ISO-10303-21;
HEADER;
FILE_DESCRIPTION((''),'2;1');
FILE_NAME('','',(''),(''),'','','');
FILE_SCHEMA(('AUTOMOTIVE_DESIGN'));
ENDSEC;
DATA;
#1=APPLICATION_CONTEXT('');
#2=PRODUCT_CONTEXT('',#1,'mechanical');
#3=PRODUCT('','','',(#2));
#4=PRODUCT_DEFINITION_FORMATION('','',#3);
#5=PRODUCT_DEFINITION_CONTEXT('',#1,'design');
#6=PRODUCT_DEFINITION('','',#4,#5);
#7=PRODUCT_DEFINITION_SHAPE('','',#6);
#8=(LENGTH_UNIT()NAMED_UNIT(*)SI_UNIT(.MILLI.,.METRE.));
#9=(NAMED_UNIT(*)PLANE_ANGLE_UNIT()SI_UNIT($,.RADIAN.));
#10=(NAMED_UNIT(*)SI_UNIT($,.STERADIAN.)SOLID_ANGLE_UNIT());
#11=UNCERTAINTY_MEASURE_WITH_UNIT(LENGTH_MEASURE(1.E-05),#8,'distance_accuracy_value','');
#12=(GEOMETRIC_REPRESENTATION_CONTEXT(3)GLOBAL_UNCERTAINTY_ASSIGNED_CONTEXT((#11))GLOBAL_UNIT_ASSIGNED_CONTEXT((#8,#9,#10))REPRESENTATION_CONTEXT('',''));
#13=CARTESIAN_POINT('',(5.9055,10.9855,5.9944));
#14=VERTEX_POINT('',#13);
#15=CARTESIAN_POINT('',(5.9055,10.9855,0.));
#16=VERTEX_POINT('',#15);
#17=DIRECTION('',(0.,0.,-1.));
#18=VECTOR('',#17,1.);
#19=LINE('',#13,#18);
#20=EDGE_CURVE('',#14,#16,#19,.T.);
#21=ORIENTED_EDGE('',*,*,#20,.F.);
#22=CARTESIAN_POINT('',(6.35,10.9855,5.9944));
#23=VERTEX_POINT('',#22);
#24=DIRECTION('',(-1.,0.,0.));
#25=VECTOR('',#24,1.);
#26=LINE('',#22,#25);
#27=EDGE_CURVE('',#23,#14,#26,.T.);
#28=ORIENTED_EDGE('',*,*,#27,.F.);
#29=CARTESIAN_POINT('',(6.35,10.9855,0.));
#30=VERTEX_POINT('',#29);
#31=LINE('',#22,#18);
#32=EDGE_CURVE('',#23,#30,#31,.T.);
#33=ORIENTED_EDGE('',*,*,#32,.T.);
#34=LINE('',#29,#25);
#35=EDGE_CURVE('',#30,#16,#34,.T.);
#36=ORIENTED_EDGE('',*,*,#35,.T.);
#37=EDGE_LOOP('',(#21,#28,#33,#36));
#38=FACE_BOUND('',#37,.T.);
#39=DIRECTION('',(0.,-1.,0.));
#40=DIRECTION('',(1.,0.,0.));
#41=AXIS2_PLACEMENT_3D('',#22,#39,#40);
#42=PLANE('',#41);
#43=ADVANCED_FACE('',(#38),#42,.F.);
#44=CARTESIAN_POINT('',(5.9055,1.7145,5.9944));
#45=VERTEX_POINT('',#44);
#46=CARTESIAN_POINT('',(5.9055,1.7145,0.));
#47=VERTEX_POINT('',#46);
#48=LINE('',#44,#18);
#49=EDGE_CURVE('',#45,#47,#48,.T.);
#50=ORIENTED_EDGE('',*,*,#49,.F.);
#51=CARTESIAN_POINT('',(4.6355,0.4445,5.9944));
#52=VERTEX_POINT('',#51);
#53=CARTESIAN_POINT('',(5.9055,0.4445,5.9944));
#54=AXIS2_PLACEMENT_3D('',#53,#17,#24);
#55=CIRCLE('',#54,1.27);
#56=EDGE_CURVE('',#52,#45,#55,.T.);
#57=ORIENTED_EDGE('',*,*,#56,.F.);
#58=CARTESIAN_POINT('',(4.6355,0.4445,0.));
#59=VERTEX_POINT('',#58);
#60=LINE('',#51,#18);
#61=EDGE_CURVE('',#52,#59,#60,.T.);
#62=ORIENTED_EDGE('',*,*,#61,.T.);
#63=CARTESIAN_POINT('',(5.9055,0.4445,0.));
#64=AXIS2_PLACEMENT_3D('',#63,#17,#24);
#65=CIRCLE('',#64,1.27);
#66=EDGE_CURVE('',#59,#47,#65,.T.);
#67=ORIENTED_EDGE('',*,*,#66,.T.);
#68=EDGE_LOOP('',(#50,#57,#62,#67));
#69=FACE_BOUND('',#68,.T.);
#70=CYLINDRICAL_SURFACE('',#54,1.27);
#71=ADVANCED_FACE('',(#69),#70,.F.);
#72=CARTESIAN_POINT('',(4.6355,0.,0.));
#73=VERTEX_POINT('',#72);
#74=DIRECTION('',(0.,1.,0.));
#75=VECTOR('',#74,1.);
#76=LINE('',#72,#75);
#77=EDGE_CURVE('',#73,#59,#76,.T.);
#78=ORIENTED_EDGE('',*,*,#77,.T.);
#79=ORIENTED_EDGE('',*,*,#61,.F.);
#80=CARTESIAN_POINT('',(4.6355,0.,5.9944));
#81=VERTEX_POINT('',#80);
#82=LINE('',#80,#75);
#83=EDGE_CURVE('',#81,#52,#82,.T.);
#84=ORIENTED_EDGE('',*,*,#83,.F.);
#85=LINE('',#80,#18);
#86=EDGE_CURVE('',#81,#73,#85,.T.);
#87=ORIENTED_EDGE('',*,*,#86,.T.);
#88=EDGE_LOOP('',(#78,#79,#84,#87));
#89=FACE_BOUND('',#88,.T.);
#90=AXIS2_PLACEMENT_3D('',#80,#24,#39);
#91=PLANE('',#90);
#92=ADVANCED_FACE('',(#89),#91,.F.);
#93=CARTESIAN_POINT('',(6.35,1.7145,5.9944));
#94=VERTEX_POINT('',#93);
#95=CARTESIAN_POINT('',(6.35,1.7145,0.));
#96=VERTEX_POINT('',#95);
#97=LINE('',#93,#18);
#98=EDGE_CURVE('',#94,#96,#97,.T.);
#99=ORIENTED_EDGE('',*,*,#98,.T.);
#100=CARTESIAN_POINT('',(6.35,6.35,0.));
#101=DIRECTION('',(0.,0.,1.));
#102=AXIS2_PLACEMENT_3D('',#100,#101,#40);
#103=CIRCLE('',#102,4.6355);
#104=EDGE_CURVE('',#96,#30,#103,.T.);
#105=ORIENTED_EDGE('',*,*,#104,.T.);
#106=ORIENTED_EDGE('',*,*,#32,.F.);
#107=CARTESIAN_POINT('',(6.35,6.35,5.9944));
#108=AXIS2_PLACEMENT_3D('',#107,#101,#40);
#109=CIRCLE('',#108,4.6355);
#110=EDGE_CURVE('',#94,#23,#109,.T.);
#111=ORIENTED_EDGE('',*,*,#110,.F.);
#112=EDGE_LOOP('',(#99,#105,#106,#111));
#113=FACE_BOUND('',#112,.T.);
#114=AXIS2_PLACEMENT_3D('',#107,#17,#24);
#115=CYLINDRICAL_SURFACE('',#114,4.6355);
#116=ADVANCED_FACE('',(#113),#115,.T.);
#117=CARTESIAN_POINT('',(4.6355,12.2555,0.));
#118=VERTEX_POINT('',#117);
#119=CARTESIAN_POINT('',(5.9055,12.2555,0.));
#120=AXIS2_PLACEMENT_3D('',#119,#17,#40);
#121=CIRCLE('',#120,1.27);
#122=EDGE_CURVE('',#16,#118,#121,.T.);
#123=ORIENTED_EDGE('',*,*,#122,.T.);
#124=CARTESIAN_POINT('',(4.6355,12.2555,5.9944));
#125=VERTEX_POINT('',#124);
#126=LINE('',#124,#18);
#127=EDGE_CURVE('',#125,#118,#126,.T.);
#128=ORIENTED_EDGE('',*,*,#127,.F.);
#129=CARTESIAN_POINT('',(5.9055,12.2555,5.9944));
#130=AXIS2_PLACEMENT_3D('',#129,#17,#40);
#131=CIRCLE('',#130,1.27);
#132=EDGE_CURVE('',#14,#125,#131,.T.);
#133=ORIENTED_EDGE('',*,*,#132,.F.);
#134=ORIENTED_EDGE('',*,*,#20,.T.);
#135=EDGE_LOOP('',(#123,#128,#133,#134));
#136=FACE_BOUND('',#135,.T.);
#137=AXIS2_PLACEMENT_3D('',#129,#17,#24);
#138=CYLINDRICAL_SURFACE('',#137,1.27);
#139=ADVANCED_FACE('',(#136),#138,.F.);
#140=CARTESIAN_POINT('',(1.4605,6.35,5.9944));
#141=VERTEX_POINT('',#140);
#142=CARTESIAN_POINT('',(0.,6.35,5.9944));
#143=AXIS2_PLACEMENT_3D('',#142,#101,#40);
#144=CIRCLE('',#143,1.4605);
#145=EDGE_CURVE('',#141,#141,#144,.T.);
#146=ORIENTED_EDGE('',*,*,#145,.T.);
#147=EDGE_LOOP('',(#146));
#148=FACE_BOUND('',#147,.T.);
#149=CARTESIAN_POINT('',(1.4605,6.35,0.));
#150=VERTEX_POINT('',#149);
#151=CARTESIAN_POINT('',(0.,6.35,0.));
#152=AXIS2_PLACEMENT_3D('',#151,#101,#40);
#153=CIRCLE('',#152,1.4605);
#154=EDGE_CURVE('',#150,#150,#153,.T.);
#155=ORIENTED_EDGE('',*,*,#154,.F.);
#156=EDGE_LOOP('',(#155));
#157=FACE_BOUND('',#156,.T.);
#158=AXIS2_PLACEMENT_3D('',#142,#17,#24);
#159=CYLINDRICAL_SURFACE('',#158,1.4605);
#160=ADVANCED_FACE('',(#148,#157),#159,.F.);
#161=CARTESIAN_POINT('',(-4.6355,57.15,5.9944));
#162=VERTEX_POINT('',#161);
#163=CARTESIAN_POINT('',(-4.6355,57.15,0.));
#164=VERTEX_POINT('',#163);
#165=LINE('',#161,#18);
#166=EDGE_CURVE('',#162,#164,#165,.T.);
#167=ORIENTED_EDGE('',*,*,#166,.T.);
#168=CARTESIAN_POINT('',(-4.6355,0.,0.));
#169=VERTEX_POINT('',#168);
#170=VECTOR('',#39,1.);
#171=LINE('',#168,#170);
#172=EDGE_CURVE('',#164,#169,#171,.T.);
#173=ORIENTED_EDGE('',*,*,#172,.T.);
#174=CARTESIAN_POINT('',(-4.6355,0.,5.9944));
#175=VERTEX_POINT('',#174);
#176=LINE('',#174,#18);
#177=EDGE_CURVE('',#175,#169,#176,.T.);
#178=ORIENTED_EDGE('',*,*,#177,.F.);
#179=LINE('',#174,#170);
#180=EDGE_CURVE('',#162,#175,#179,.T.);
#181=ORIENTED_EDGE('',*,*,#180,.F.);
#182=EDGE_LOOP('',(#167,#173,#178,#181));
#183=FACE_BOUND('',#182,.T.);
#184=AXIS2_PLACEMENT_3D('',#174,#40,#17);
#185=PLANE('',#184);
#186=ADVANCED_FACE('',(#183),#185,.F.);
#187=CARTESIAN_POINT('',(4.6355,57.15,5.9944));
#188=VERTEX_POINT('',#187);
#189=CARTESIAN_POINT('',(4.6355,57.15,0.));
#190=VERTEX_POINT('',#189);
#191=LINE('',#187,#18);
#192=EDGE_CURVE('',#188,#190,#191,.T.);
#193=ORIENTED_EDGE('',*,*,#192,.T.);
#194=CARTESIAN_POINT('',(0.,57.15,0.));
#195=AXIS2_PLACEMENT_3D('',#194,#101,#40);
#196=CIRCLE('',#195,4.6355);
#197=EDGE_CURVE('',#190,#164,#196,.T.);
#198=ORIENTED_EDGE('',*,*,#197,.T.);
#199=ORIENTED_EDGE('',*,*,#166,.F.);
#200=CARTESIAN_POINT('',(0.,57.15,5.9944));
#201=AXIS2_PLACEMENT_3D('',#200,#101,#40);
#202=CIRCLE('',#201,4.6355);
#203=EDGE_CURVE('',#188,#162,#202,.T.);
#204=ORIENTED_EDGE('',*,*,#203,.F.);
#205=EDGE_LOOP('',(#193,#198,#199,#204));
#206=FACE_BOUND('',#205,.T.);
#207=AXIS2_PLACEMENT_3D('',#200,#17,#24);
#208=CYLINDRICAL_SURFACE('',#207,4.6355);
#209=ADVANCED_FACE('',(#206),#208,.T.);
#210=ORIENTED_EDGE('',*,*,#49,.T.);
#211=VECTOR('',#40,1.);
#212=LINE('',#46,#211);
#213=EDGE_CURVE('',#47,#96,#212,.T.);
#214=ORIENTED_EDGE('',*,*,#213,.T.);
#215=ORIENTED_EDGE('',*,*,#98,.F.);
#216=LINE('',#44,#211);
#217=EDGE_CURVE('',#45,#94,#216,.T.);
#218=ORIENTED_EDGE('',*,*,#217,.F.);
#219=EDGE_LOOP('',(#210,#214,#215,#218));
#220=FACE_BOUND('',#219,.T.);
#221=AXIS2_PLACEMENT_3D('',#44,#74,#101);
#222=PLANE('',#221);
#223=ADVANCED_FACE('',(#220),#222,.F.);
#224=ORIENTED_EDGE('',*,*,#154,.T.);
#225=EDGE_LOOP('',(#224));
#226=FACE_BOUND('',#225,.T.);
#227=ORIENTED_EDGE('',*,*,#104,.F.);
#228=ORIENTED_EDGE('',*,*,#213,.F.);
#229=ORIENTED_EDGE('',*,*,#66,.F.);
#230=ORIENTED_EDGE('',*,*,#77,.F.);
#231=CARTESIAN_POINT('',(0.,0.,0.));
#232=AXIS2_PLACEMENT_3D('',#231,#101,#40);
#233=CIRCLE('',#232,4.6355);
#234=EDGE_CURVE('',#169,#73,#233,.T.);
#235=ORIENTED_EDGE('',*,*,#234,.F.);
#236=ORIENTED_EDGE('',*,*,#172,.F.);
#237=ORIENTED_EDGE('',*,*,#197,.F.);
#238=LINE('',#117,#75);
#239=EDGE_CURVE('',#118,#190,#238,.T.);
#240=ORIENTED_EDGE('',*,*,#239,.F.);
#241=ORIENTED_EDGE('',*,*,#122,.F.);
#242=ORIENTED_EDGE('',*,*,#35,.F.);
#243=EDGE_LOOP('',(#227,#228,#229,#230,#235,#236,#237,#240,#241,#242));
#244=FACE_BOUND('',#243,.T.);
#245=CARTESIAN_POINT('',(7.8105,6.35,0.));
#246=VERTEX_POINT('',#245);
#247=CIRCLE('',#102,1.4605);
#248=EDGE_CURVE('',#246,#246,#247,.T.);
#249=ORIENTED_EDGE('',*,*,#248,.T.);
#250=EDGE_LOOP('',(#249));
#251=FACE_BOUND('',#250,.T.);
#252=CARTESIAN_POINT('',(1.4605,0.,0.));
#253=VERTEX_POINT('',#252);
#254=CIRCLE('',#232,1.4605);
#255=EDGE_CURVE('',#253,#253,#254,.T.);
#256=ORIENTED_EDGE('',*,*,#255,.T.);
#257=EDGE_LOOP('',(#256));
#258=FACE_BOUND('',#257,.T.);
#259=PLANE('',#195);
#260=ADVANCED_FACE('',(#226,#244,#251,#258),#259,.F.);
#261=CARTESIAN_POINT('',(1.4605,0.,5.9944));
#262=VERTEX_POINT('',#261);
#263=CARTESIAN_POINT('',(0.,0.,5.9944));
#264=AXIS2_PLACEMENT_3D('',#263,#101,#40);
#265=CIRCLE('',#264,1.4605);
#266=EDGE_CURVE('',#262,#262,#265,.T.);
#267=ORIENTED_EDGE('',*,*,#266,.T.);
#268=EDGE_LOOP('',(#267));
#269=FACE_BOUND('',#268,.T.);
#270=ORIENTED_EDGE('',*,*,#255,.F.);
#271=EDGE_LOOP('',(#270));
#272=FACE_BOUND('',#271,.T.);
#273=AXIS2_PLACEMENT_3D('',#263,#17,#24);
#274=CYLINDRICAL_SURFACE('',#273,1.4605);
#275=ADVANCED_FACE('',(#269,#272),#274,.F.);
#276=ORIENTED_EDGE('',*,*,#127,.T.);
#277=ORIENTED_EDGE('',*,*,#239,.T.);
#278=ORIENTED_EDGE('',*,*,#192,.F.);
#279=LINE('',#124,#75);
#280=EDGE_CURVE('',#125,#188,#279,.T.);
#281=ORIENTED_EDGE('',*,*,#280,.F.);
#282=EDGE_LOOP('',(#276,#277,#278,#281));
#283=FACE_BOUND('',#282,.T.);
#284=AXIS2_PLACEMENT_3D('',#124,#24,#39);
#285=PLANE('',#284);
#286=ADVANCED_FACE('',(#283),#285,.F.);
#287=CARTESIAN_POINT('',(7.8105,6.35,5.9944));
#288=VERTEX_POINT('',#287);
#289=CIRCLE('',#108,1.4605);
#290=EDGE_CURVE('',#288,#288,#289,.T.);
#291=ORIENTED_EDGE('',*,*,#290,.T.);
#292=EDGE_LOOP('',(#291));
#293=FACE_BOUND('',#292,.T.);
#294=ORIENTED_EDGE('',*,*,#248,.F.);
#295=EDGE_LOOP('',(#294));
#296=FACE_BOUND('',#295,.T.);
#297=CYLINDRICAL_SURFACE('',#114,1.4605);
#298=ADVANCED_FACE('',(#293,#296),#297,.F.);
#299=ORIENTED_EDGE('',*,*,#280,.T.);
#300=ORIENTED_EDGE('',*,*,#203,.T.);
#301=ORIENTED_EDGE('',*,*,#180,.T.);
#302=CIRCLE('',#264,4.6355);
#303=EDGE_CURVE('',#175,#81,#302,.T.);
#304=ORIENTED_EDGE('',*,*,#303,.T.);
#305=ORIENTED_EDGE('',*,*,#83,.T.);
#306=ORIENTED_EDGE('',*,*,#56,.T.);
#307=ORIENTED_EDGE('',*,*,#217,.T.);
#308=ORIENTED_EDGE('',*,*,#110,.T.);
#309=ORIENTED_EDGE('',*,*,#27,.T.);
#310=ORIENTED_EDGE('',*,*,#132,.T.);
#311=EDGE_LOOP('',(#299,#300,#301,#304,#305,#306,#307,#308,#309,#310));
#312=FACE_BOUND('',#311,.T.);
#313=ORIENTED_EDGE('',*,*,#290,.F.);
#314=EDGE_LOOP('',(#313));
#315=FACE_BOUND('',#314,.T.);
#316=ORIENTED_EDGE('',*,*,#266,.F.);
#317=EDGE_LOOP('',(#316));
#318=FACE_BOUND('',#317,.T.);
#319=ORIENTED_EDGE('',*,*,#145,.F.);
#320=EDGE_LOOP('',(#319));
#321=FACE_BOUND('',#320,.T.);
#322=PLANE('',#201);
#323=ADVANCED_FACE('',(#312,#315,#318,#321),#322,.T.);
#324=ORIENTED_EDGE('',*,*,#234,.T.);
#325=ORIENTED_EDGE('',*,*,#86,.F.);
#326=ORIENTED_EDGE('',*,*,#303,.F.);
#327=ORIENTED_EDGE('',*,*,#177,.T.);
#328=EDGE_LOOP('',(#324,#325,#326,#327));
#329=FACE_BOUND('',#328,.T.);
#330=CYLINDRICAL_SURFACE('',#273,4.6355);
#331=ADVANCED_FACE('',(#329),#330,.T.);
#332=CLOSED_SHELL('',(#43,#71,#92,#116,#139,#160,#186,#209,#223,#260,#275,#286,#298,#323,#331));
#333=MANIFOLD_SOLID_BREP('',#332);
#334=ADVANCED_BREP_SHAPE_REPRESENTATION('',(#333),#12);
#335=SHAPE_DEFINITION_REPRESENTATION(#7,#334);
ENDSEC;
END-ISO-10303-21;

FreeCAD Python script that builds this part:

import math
import FreeCAD as App
import Part
import Sketcher
Q = App.Units.Quantity

doc = App.newDocument("Part")
body = doc.addObject("PartDesign::Body", "Body")

# Sketch on XY plane
sketch1 = body.newObject("Sketcher::SketchObject", "Sketch")
sketch1.AttachmentSupport = (doc.getObject("XY_Plane"), [""])
sketch1.MapMode = "FlatFace"
sketch1.addGeometry([
    Part.LineSegment(App.Vector(4.64, 0, 0), App.Vector(4.64, 0.44, 0)),  # 0
    Part.ArcOfCircle(Part.Circle(App.Vector(5.91, 0.44, 0), App.Vector(0, 0, 1), 1.27), math.radians(90), math.radians(180)),  # 1
    Part.LineSegment(App.Vector(5.91, 1.71, 0), App.Vector(6.35, 1.71, 0)),  # 2
    Part.ArcOfCircle(Part.Circle(App.Vector(6.35, 6.35, 0), App.Vector(0, 0, 1), 4.64), math.radians(-90), math.radians(90)),  # 3
    Part.LineSegment(App.Vector(6.35, 10.99, 0), App.Vector(5.91, 10.99, 0)),  # 4
    Part.ArcOfCircle(Part.Circle(App.Vector(5.91, 12.26, 0), App.Vector(0, 0, 1), 1.27), math.radians(180), math.radians(270)),  # 5
    Part.LineSegment(App.Vector(4.64, 12.26, 0), App.Vector(4.64, 57.15, 0)),  # 6
    Part.ArcOfCircle(Part.Circle(App.Vector(0, 57.15, 0), App.Vector(0, 0, 1), 4.64), math.radians(0), math.radians(180)),  # 7
    Part.LineSegment(App.Vector(-4.64, 57.15, 0), App.Vector(-4.64, 0, 0)),  # 8
    Part.ArcOfCircle(Part.Circle(App.Vector(0, 0, 0), App.Vector(0, 0, 1), 4.64), math.radians(180), math.radians(360)),  # 9
    Part.Circle(App.Vector(0, 0, 0), App.Vector(0, 0, 1), 1.46),  # 10
    Part.Circle(App.Vector(0, 6.35, 0), App.Vector(0, 0, 1), 1.46),  # 11
    Part.Circle(App.Vector(6.35, 6.35, 0), App.Vector(0, 0, 1), 1.46),  # 12
], False)
sketch1.addConstraint([
    Sketcher.Constraint("Tangent", 0, 2, 1, 2),
    Sketcher.Constraint("Tangent", 1, 1, 2, 1),
    Sketcher.Constraint("Tangent", 2, 2, 3, 1),
    Sketcher.Constraint("Tangent", 3, 2, 4, 1),
    Sketcher.Constraint("Tangent", 4, 2, 5, 2),
    Sketcher.Constraint("Tangent", 5, 1, 6, 1),
    Sketcher.Constraint("Tangent", 6, 2, 7, 1),
    Sketcher.Constraint("Tangent", 7, 2, 8, 1),
    Sketcher.Constraint("Tangent", 8, 2, 9, 1),
    Sketcher.Constraint("Tangent", 9, 2, 0, 1),
    Sketcher.Constraint("Vertical", 0),
    Sketcher.Constraint("Horizontal", 2),
    Sketcher.Constraint("Horizontal", 4),
    Sketcher.Constraint("Vertical", 6),
    Sketcher.Constraint("Vertical", 8),
    Sketcher.Constraint("Coincident", 9, 3, -1, 1),
    Sketcher.Constraint("Coincident", 10, 3, -1, 1),
    Sketcher.Constraint("Coincident", 12, 3, 3, 3),
    Sketcher.Constraint("Equal", 1, 5),
    Sketcher.Constraint("Equal", 3, 7),
    Sketcher.Constraint("Equal", 7, 9),
    Sketcher.Constraint("Equal", 10, 11),
    Sketcher.Constraint("Equal", 11, 12),
    Sketcher.Constraint("PointOnObject", 11, 3, -2),
    Sketcher.Constraint("Horizontal", 3, 3, 11, 3),
    Sketcher.Constraint("Equal", 4, 0),
    Sketcher.Constraint("Radius", 1, Q("0.05 in")),
    Sketcher.Constraint("Diameter", 10, Q("0.115 in")),
    Sketcher.Constraint("DistanceY", 3, 3, 7, 3, Q("2 in")),
    Sketcher.Constraint("DistanceY", 8, 2, 8, 1, Q("2.25 in")),
    Sketcher.Constraint("Radius", 3, Q("0.1825 in")),
])
pad1 = body.newObject("PartDesign::Pad", "Pad")
pad1.Profile = sketch1
pad1.Length = Q("0.236 in")

doc.recompute()
